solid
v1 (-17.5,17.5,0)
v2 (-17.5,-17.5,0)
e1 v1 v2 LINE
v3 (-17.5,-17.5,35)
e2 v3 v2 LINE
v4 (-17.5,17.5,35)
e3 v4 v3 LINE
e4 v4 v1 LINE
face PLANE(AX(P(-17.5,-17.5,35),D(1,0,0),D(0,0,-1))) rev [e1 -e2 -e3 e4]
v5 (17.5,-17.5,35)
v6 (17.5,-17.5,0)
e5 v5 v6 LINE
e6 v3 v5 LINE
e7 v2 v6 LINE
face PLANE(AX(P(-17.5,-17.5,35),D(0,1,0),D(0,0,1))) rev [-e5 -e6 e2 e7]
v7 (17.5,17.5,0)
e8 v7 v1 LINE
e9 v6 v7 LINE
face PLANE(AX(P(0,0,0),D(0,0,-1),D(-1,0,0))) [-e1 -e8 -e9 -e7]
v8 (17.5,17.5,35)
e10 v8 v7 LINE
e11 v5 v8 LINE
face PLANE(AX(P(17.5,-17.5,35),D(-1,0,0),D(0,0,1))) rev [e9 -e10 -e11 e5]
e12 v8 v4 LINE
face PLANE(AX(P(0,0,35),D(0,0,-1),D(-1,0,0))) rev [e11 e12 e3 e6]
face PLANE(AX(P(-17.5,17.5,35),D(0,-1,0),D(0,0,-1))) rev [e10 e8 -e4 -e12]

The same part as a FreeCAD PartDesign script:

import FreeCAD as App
import Part
import Sketcher

doc = App.newDocument("Part")
body = doc.addObject("PartDesign::Body", "Body")

sketch1 = body.newObject("Sketcher::SketchObject", "Sketch")
sketch1.AttachmentSupport = (doc.getObject("XY_Plane"), [""])
sketch1.MapMode = "FlatFace"
sketch1.addGeometry([
    Part.LineSegment(App.Vector(-18, 18, 0), App.Vector(-18, -18, 0)),
    Part.LineSegment(App.Vector(-18, -18, 0), App.Vector(18, -18, 0)),
    Part.LineSegment(App.Vector(18, -18, 0), App.Vector(18, 18, 0)),
    Part.LineSegment(App.Vector(18, 18, 0), App.Vector(-18, 18, 0)),
], False)
sketch1.addConstraint([
    Sketcher.Constraint("Coincident", 0, 2, 1, 1),
    Sketcher.Constraint("Coincident", 1, 2, 2, 1),
    Sketcher.Constraint("Coincident", 2, 2, 3, 1),
    Sketcher.Constraint("Coincident", 3, 2, 0, 1),
    Sketcher.Constraint("Vertical", 0),
    Sketcher.Constraint("Horizontal", 1),
    Sketcher.Constraint("Vertical", 2),
    Sketcher.Constraint("Horizontal", 3),
    Sketcher.Constraint("Symmetric", 0, 2, 2, 2, -1, 1),
    Sketcher.Constraint("Equal", 3, 0),
    Sketcher.Constraint("DistanceX", 1, 1, 1, 2, 35.0),
])
pad1 = body.newObject("PartDesign::Pad", "Pad")
pad1.Profile = sketch1
pad1.Length = 35

doc.recompute()
